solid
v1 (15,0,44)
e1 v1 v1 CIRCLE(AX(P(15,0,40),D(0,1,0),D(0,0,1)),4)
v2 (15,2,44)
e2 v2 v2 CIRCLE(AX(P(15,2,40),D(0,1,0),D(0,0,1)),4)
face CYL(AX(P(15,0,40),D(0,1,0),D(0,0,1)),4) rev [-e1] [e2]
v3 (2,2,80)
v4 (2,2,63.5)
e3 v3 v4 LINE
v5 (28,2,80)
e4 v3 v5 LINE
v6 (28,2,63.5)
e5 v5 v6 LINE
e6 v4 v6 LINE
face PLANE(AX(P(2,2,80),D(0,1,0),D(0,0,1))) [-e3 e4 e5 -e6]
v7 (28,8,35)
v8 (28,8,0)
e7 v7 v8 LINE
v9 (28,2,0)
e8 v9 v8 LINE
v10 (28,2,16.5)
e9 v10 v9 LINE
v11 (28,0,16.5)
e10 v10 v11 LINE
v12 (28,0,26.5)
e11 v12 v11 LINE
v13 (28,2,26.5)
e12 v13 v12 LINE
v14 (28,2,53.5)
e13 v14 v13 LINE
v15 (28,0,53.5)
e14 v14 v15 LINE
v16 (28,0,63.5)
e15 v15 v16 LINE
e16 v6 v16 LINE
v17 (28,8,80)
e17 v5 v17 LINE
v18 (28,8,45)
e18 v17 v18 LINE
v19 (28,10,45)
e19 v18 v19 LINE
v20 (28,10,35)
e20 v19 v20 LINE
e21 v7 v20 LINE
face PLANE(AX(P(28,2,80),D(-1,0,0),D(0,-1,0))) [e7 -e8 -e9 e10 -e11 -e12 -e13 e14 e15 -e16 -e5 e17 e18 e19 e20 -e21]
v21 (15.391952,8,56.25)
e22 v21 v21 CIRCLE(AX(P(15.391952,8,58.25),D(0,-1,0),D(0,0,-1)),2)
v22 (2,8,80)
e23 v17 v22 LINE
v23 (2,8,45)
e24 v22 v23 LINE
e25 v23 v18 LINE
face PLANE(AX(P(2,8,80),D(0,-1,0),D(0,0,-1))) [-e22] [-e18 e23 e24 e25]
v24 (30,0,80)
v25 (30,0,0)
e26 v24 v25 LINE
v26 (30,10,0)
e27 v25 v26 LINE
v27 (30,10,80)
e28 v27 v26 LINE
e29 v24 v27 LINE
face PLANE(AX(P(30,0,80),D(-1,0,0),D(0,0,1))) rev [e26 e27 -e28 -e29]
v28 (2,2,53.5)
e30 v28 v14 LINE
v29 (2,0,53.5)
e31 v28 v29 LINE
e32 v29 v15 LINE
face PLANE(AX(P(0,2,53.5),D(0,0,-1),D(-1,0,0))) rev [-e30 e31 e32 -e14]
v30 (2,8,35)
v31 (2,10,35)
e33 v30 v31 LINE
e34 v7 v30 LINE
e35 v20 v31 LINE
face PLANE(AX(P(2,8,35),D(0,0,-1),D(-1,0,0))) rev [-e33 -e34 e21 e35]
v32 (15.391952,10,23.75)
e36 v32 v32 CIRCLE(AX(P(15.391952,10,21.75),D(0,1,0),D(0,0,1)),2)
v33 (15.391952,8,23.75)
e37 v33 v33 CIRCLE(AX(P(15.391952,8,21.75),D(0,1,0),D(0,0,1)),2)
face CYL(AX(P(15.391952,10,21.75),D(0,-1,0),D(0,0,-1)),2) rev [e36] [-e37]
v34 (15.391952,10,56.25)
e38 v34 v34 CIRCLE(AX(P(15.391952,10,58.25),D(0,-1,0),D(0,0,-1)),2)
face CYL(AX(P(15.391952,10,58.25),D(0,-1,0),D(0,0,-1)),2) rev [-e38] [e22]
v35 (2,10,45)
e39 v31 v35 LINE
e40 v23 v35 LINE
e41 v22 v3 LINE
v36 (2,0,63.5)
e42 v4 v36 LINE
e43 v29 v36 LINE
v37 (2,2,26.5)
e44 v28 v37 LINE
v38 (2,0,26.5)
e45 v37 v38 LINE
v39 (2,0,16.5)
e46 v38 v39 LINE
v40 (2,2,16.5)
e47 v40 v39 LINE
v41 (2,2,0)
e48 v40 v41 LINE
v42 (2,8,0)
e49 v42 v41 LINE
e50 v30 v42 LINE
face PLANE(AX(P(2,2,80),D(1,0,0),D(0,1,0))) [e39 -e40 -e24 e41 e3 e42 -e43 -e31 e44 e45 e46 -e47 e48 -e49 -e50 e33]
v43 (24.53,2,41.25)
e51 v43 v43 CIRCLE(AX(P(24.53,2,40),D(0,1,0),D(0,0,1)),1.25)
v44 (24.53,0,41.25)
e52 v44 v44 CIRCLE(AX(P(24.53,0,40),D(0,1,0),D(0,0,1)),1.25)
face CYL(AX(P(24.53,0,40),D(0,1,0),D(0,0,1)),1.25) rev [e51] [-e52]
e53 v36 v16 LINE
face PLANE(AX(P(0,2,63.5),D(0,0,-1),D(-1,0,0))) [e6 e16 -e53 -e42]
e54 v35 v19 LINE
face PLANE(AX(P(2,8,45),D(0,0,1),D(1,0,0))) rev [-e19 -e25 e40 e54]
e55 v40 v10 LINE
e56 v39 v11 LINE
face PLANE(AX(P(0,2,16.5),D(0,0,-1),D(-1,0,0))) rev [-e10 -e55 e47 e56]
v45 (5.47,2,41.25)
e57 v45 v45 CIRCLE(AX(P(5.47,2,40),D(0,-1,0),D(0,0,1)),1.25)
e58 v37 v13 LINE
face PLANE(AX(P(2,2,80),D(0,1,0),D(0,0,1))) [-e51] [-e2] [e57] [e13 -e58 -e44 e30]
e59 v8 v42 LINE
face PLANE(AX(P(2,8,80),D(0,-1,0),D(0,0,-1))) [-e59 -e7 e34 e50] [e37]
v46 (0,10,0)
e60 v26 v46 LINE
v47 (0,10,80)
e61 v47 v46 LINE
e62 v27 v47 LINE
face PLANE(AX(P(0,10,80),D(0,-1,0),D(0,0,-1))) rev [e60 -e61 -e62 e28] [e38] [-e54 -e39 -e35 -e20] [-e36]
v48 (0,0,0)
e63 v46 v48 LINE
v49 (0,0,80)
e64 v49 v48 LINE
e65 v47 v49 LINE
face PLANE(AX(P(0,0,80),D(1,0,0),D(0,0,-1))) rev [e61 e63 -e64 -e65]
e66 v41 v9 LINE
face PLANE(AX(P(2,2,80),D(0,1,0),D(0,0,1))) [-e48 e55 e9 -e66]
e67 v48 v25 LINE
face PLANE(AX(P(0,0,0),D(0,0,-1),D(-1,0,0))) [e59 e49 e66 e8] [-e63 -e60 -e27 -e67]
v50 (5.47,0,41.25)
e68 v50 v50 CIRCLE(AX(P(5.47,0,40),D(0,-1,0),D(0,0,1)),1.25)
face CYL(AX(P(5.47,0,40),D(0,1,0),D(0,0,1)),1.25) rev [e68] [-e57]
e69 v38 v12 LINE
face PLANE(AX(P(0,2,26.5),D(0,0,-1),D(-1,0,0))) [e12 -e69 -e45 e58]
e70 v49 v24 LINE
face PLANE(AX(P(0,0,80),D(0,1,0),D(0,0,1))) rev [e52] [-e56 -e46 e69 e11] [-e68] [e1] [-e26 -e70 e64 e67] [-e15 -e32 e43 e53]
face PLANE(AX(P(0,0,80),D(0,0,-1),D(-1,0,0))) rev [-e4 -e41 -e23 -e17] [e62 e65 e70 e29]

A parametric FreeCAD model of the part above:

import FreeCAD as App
import Part
import Sketcher
Q = App.Units.Quantity

doc = App.newDocument("Part")
params = doc.addObject("Spreadsheet::Sheet", "Params")
for row, (alias, value) in enumerate([
    ("sketch1_width", "30 mm"),
    ("sketch1_width2", "26 mm"),
    ("sketch1_height", "10 mm"),
    ("sketch1_height2", "6 mm"),
    ("pad1_length", "80 mm"),
    ("sketch2_diameter", "8 mm"),
    ("pocket1_length", "10 mm"),
    ("sketch3_width", "26 mm"),
    ("sketch3_height", "10 mm"),
    ("pocket2_length", "2 mm"),
    ("sketch4_width", "26 mm"),
    ("sketch4_height", "10 mm"),
    ("pocket3_length", "2 mm"),
    ("sketch5_diameter", "4 mm"),
    ("pocket4_length", "2 mm"),
    ("sketch6_diameter", "2.5 mm"),
    ("pocket5_length", "2 mm"),
], start=1):
    params.set(f"A{row}", alias)
    params.set(f"B{row}", "=" + value)
    params.setAlias(f"B{row}", alias)

body = doc.addObject("PartDesign::Body", "Body")

sketch1 = body.newObject("Sketcher::SketchObject", "Sketch")
sketch1.AttachmentSupport = (doc.getObject("XY_Plane"), [""])
sketch1.MapMode = "FlatFace"
sketch1.addGeometry([
    Part.LineSegment(App.Vector(0, 10, 0), App.Vector(0, 0, 0)),
    Part.LineSegment(App.Vector(0, 0, 0), App.Vector(30, 0, 0)),
    Part.LineSegment(App.Vector(30, 0, 0), App.Vector(30, 10, 0)),
    Part.LineSegment(App.Vector(30, 10, 0), App.Vector(0, 10, 0)),
    Part.LineSegment(App.Vector(28, 2, 0), App.Vector(2, 2, 0)),
    Part.LineSegment(App.Vector(2, 2, 0), App.Vector(2, 8, 0)),
    Part.LineSegment(App.Vector(2, 8, 0), App.Vector(28, 8, 0)),
    Part.LineSegment(App.Vector(28, 8, 0), App.Vector(28, 2, 0)),
], False)
sketch1.addConstraint([
    Sketcher.Constraint("Coincident", 0, 2, 1, 1),
    Sketcher.Constraint("Coincident", 1, 2, 2, 1),
    Sketcher.Constraint("Coincident", 2, 2, 3, 1),
    Sketcher.Constraint("Coincident", 3, 2, 0, 1),
    Sketcher.Constraint("Coincident", 4, 2, 5, 1),
    Sketcher.Constraint("Coincident", 5, 2, 6, 1),
    Sketcher.Constraint("Coincident", 6, 2, 7, 1),
    Sketcher.Constraint("Coincident", 7, 2, 4, 1),
    Sketcher.Constraint("Vertical", 0),
    Sketcher.Constraint("Horizontal", 1),
    Sketcher.Constraint("Vertical", 2),
    Sketcher.Constraint("Horizontal", 3),
    Sketcher.Constraint("Horizontal", 4),
    Sketcher.Constraint("Vertical", 5),
    Sketcher.Constraint("Horizontal", 6),
    Sketcher.Constraint("Vertical", 7),
    Sketcher.Constraint("Coincident", 0, 2, -1, 1),
    Sketcher.Constraint("DistanceX", 1, 1, 1, 2, Q("30 mm")),
    Sketcher.Constraint("DistanceX", 4, 2, 4, 1, Q("26 mm")),
    Sketcher.Constraint("DistanceY", 0, 2, 0, 1, Q("10 mm")),
    Sketcher.Constraint("DistanceY", 5, 1, 5, 2, Q("6 mm")),
    Sketcher.Constraint("DistanceX", -1, 1, 4, 2, Q("2 mm")),
    Sketcher.Constraint("DistanceY", -1, 1, 4, 2, Q("2 mm")),
])
sketch1.setExpression("Constraints[17]", "Params.sketch1_width")
sketch1.setExpression("Constraints[18]", "Params.sketch1_width2")
sketch1.setExpression("Constraints[19]", "Params.sketch1_height")
sketch1.setExpression("Constraints[20]", "Params.sketch1_height2")
pad1 = body.newObject("PartDesign::Pad", "Pad")
pad1.Profile = sketch1
pad1.setExpression("Length", "Params.pad1_length")

sketch2 = body.newObject("Sketcher::SketchObject", "Sketch001")
sketch2.AttachmentSupport = (doc.getObject("XZ_Plane"), [""])
sketch2.MapMode = "FlatFace"
sketch2.AttachmentOffset = App.Placement(App.Vector(0, 0, -10), App.Rotation())
sketch2.addGeometry(Part.Circle(App.Vector(15, 40, 0), App.Vector(0, 0, 1), 4), False)
sketch2.addConstraint([
    Sketcher.Constraint("Diameter", 0, Q("8 mm")),
    Sketcher.Constraint("DistanceX", -1, 1, 0, 3, Q("15 mm")),
    Sketcher.Constraint("DistanceY", -1, 1, 0, 3, Q("40 mm")),
])
sketch2.setExpression("Constraints[0]", "Params.sketch2_diameter")
pocket1 = body.newObject("PartDesign::Pocket", "Pocket")
pocket1.Profile = sketch2
pocket1.setExpression("Length", "Params.pocket1_length")
pocket1.Reversed = True

sketch3 = body.newObject("Sketcher::SketchObject", "Sketch002")
sketch3.AttachmentSupport = (doc.getObject("XZ_Plane"), [""])
sketch3.MapMode = "FlatFace"
sketch3.AttachmentOffset = App.Placement(App.Vector(0, 0, -10), App.Rotation())
sketch3.addGeometry([
    Part.LineSegment(App.Vector(2, 35, 0), App.Vector(2, 45, 0)),
    Part.LineSegment(App.Vector(2, 45, 0), App.Vector(28, 45, 0)),
    Part.LineSegment(App.Vector(28, 45, 0), App.Vector(28, 35, 0)),
    Part.LineSegment(App.Vector(28, 35, 0), App.Vector(2, 35, 0)),
], False)
sketch3.addConstraint([
    Sketcher.Constraint("Coincident", 0, 2, 1, 1),
    Sketcher.Constraint("Coincident", 1, 2, 2, 1),
    Sketcher.Constraint("Coincident", 2, 2, 3, 1),
    Sketcher.Constraint("Coincident", 3, 2, 0, 1),
    Sketcher.Constraint("Vertical", 0),
    Sketcher.Constraint("Horizontal", 1),
    Sketcher.Constraint("Vertical", 2),
    Sketcher.Constraint("Horizontal", 3),
    Sketcher.Constraint("DistanceX", 1, 1, 1, 2, Q("26 mm")),
    Sketcher.Constraint("DistanceY", 0, 1, 0, 2, Q("10 mm")),
    Sketcher.Constraint("DistanceX", -1, 1, 0, 2, Q("2 mm")),
    Sketcher.Constraint("DistanceY", -1, 1, 0, 2, Q("45 mm")),
])
sketch3.setExpression("Constraints[8]", "Params.sketch3_width")
sketch3.setExpression("Constraints[9]", "Params.sketch3_height")
pocket2 = body.newObject("PartDesign::Pocket", "Pocket001")
pocket2.Profile = sketch3
pocket2.setExpression("Length", "Params.pocket2_length")
pocket2.Reversed = True

sketch4 = body.newObject("Sketcher::SketchObject", "Sketch003")
sketch4.AttachmentSupport = (doc.getObject("XZ_Plane"), [""])
sketch4.MapMode = "FlatFace"
sketch4.addGeometry([
    Part.LineSegment(App.Vector(28, 54, 0), App.Vector(28, 64, 0)),
    Part.LineSegment(App.Vector(28, 64, 0), App.Vector(2, 64, 0)),
    Part.LineSegment(App.Vector(2, 64, 0), App.Vector(2, 54, 0)),
    Part.LineSegment(App.Vector(2, 54, 0), App.Vector(28, 54, 0)),
], False)
sketch4.addConstraint([
    Sketcher.Constraint("Coincident", 0, 2, 1, 1),
    Sketcher.Constraint("Coincident", 1, 2, 2, 1),
    Sketcher.Constraint("Coincident", 2, 2, 3, 1),
    Sketcher.Constraint("Coincident", 3, 2, 0, 1),
    Sketcher.Constraint("Vertical", 0),
    Sketcher.Constraint("Horizontal", 1),
    Sketcher.Constraint("Vertical", 2),
    Sketcher.Constraint("Horizontal", 3),
    Sketcher.Constraint("DistanceX", 1, 2, 1, 1, Q("26 mm")),
    Sketcher.Constraint("DistanceY", 0, 1, 0, 2, Q("10 mm")),
    Sketcher.Constraint("DistanceX", -1, 1, 0, 2, Q("28 mm")),
    Sketcher.Constraint("DistanceY", -1, 1, 0, 2, Q("63.5 mm")),
])
sketch4.setExpression("Constraints[8]", "Params.sketch4_width")
sketch4.setExpression("Constraints[9]", "Params.sketch4_height")
pocket3 = body.newObject("PartDesign::Pocket", "Pocket002")
pocket3.Profile = sketch4
pocket3.setExpression("Length", "Params.pocket3_length")

sketch5 = body.newObject("Sketcher::SketchObject", "Sketch004")
sketch5.AttachmentSupport = (doc.getObject("XZ_Plane"), [""])
sketch5.MapMode = "FlatFace"
sketch5.AttachmentOffset = App.Placement(App.Vector(0, 0, -8), App.Rotation())
sketch5.addGeometry(Part.Circle(App.Vector(15.4, 58.2, 0), App.Vector(0, 0, 1), 2), False)
sketch5.addConstraint([
    Sketcher.Constraint("Diameter", 0, Q("4 mm")),
    Sketcher.Constraint("DistanceY", -1, 1, 0, 3, Q("58.25 mm")),
    Sketcher.Constraint("DistanceX", -1, 1, 0, 3, Q("15.391952 mm")),
])
sketch5.setExpression("Constraints[0]", "Params.sketch5_diameter")
pocket4 = body.newObject("PartDesign::Pocket", "Pocket003")
pocket4.Profile = sketch5
pocket4.setExpression("Length", "Params.pocket4_length")
doc.recompute()

datumplane = body.newObject("PartDesign::Plane", "DatumPlane")
datumplane.AttachmentSupport = (doc.getObject("XY_Plane"), [""])
datumplane.MapMode = "FlatFace"
datumplane.AttachmentOffset = App.Placement(App.Vector(0, 0, 40), App.Rotation())
mirrored = body.newObject("PartDesign::Mirrored", "Mirrored")
mirrored.Originals = [pocket3, pocket4]
mirrored.MirrorPlane = (datumplane, [""])
body.Tip = mirrored

sketch6 = body.newObject("Sketcher::SketchObject", "Sketch005")
sketch6.AttachmentSupport = (doc.getObject("XZ_Plane"), [""])
sketch6.MapMode = "FlatFace"
sketch6.AttachmentOffset = App.Placement(App.Vector(0, 0, -2), App.Rotation())
sketch6.addGeometry(Part.Circle(App.Vector(24.5, 40, 0), App.Vector(0, 0, 1), 1.2), False)
sketch6.addConstraint([
    Sketcher.Constraint("Diameter", 0, Q("2.5 mm")),
    Sketcher.Constraint("DistanceY", -1, 1, 0, 3, Q("40 mm")),
    Sketcher.Constraint("DistanceX", -1, 1, 0, 3, Q("24.53 mm")),
])
sketch6.setExpression("Constraints[0]", "Params.sketch6_diameter")
pocket5 = body.newObject("PartDesign::Pocket", "Pocket004")
pocket5.Profile = sketch6
pocket5.setExpression("Length", "Params.pocket5_length")
pocket5.Reversed = True
doc.recompute()

datumplane2 = body.newObject("PartDesign::Plane", "DatumPlane001")
datumplane2.AttachmentSupport = (doc.getObject("YZ_Plane"), [""])
datumplane2.MapMode = "FlatFace"
datumplane2.AttachmentOffset = App.Placement(App.Vector(0, 0, 15), App.Rotation())
mirrored2 = body.newObject("PartDesign::Mirrored", "Mirrored001")
mirrored2.Originals = [pocket5]
mirrored2.MirrorPlane = (datumplane2, [""])
body.Tip = mirrored2

doc.recompute()
